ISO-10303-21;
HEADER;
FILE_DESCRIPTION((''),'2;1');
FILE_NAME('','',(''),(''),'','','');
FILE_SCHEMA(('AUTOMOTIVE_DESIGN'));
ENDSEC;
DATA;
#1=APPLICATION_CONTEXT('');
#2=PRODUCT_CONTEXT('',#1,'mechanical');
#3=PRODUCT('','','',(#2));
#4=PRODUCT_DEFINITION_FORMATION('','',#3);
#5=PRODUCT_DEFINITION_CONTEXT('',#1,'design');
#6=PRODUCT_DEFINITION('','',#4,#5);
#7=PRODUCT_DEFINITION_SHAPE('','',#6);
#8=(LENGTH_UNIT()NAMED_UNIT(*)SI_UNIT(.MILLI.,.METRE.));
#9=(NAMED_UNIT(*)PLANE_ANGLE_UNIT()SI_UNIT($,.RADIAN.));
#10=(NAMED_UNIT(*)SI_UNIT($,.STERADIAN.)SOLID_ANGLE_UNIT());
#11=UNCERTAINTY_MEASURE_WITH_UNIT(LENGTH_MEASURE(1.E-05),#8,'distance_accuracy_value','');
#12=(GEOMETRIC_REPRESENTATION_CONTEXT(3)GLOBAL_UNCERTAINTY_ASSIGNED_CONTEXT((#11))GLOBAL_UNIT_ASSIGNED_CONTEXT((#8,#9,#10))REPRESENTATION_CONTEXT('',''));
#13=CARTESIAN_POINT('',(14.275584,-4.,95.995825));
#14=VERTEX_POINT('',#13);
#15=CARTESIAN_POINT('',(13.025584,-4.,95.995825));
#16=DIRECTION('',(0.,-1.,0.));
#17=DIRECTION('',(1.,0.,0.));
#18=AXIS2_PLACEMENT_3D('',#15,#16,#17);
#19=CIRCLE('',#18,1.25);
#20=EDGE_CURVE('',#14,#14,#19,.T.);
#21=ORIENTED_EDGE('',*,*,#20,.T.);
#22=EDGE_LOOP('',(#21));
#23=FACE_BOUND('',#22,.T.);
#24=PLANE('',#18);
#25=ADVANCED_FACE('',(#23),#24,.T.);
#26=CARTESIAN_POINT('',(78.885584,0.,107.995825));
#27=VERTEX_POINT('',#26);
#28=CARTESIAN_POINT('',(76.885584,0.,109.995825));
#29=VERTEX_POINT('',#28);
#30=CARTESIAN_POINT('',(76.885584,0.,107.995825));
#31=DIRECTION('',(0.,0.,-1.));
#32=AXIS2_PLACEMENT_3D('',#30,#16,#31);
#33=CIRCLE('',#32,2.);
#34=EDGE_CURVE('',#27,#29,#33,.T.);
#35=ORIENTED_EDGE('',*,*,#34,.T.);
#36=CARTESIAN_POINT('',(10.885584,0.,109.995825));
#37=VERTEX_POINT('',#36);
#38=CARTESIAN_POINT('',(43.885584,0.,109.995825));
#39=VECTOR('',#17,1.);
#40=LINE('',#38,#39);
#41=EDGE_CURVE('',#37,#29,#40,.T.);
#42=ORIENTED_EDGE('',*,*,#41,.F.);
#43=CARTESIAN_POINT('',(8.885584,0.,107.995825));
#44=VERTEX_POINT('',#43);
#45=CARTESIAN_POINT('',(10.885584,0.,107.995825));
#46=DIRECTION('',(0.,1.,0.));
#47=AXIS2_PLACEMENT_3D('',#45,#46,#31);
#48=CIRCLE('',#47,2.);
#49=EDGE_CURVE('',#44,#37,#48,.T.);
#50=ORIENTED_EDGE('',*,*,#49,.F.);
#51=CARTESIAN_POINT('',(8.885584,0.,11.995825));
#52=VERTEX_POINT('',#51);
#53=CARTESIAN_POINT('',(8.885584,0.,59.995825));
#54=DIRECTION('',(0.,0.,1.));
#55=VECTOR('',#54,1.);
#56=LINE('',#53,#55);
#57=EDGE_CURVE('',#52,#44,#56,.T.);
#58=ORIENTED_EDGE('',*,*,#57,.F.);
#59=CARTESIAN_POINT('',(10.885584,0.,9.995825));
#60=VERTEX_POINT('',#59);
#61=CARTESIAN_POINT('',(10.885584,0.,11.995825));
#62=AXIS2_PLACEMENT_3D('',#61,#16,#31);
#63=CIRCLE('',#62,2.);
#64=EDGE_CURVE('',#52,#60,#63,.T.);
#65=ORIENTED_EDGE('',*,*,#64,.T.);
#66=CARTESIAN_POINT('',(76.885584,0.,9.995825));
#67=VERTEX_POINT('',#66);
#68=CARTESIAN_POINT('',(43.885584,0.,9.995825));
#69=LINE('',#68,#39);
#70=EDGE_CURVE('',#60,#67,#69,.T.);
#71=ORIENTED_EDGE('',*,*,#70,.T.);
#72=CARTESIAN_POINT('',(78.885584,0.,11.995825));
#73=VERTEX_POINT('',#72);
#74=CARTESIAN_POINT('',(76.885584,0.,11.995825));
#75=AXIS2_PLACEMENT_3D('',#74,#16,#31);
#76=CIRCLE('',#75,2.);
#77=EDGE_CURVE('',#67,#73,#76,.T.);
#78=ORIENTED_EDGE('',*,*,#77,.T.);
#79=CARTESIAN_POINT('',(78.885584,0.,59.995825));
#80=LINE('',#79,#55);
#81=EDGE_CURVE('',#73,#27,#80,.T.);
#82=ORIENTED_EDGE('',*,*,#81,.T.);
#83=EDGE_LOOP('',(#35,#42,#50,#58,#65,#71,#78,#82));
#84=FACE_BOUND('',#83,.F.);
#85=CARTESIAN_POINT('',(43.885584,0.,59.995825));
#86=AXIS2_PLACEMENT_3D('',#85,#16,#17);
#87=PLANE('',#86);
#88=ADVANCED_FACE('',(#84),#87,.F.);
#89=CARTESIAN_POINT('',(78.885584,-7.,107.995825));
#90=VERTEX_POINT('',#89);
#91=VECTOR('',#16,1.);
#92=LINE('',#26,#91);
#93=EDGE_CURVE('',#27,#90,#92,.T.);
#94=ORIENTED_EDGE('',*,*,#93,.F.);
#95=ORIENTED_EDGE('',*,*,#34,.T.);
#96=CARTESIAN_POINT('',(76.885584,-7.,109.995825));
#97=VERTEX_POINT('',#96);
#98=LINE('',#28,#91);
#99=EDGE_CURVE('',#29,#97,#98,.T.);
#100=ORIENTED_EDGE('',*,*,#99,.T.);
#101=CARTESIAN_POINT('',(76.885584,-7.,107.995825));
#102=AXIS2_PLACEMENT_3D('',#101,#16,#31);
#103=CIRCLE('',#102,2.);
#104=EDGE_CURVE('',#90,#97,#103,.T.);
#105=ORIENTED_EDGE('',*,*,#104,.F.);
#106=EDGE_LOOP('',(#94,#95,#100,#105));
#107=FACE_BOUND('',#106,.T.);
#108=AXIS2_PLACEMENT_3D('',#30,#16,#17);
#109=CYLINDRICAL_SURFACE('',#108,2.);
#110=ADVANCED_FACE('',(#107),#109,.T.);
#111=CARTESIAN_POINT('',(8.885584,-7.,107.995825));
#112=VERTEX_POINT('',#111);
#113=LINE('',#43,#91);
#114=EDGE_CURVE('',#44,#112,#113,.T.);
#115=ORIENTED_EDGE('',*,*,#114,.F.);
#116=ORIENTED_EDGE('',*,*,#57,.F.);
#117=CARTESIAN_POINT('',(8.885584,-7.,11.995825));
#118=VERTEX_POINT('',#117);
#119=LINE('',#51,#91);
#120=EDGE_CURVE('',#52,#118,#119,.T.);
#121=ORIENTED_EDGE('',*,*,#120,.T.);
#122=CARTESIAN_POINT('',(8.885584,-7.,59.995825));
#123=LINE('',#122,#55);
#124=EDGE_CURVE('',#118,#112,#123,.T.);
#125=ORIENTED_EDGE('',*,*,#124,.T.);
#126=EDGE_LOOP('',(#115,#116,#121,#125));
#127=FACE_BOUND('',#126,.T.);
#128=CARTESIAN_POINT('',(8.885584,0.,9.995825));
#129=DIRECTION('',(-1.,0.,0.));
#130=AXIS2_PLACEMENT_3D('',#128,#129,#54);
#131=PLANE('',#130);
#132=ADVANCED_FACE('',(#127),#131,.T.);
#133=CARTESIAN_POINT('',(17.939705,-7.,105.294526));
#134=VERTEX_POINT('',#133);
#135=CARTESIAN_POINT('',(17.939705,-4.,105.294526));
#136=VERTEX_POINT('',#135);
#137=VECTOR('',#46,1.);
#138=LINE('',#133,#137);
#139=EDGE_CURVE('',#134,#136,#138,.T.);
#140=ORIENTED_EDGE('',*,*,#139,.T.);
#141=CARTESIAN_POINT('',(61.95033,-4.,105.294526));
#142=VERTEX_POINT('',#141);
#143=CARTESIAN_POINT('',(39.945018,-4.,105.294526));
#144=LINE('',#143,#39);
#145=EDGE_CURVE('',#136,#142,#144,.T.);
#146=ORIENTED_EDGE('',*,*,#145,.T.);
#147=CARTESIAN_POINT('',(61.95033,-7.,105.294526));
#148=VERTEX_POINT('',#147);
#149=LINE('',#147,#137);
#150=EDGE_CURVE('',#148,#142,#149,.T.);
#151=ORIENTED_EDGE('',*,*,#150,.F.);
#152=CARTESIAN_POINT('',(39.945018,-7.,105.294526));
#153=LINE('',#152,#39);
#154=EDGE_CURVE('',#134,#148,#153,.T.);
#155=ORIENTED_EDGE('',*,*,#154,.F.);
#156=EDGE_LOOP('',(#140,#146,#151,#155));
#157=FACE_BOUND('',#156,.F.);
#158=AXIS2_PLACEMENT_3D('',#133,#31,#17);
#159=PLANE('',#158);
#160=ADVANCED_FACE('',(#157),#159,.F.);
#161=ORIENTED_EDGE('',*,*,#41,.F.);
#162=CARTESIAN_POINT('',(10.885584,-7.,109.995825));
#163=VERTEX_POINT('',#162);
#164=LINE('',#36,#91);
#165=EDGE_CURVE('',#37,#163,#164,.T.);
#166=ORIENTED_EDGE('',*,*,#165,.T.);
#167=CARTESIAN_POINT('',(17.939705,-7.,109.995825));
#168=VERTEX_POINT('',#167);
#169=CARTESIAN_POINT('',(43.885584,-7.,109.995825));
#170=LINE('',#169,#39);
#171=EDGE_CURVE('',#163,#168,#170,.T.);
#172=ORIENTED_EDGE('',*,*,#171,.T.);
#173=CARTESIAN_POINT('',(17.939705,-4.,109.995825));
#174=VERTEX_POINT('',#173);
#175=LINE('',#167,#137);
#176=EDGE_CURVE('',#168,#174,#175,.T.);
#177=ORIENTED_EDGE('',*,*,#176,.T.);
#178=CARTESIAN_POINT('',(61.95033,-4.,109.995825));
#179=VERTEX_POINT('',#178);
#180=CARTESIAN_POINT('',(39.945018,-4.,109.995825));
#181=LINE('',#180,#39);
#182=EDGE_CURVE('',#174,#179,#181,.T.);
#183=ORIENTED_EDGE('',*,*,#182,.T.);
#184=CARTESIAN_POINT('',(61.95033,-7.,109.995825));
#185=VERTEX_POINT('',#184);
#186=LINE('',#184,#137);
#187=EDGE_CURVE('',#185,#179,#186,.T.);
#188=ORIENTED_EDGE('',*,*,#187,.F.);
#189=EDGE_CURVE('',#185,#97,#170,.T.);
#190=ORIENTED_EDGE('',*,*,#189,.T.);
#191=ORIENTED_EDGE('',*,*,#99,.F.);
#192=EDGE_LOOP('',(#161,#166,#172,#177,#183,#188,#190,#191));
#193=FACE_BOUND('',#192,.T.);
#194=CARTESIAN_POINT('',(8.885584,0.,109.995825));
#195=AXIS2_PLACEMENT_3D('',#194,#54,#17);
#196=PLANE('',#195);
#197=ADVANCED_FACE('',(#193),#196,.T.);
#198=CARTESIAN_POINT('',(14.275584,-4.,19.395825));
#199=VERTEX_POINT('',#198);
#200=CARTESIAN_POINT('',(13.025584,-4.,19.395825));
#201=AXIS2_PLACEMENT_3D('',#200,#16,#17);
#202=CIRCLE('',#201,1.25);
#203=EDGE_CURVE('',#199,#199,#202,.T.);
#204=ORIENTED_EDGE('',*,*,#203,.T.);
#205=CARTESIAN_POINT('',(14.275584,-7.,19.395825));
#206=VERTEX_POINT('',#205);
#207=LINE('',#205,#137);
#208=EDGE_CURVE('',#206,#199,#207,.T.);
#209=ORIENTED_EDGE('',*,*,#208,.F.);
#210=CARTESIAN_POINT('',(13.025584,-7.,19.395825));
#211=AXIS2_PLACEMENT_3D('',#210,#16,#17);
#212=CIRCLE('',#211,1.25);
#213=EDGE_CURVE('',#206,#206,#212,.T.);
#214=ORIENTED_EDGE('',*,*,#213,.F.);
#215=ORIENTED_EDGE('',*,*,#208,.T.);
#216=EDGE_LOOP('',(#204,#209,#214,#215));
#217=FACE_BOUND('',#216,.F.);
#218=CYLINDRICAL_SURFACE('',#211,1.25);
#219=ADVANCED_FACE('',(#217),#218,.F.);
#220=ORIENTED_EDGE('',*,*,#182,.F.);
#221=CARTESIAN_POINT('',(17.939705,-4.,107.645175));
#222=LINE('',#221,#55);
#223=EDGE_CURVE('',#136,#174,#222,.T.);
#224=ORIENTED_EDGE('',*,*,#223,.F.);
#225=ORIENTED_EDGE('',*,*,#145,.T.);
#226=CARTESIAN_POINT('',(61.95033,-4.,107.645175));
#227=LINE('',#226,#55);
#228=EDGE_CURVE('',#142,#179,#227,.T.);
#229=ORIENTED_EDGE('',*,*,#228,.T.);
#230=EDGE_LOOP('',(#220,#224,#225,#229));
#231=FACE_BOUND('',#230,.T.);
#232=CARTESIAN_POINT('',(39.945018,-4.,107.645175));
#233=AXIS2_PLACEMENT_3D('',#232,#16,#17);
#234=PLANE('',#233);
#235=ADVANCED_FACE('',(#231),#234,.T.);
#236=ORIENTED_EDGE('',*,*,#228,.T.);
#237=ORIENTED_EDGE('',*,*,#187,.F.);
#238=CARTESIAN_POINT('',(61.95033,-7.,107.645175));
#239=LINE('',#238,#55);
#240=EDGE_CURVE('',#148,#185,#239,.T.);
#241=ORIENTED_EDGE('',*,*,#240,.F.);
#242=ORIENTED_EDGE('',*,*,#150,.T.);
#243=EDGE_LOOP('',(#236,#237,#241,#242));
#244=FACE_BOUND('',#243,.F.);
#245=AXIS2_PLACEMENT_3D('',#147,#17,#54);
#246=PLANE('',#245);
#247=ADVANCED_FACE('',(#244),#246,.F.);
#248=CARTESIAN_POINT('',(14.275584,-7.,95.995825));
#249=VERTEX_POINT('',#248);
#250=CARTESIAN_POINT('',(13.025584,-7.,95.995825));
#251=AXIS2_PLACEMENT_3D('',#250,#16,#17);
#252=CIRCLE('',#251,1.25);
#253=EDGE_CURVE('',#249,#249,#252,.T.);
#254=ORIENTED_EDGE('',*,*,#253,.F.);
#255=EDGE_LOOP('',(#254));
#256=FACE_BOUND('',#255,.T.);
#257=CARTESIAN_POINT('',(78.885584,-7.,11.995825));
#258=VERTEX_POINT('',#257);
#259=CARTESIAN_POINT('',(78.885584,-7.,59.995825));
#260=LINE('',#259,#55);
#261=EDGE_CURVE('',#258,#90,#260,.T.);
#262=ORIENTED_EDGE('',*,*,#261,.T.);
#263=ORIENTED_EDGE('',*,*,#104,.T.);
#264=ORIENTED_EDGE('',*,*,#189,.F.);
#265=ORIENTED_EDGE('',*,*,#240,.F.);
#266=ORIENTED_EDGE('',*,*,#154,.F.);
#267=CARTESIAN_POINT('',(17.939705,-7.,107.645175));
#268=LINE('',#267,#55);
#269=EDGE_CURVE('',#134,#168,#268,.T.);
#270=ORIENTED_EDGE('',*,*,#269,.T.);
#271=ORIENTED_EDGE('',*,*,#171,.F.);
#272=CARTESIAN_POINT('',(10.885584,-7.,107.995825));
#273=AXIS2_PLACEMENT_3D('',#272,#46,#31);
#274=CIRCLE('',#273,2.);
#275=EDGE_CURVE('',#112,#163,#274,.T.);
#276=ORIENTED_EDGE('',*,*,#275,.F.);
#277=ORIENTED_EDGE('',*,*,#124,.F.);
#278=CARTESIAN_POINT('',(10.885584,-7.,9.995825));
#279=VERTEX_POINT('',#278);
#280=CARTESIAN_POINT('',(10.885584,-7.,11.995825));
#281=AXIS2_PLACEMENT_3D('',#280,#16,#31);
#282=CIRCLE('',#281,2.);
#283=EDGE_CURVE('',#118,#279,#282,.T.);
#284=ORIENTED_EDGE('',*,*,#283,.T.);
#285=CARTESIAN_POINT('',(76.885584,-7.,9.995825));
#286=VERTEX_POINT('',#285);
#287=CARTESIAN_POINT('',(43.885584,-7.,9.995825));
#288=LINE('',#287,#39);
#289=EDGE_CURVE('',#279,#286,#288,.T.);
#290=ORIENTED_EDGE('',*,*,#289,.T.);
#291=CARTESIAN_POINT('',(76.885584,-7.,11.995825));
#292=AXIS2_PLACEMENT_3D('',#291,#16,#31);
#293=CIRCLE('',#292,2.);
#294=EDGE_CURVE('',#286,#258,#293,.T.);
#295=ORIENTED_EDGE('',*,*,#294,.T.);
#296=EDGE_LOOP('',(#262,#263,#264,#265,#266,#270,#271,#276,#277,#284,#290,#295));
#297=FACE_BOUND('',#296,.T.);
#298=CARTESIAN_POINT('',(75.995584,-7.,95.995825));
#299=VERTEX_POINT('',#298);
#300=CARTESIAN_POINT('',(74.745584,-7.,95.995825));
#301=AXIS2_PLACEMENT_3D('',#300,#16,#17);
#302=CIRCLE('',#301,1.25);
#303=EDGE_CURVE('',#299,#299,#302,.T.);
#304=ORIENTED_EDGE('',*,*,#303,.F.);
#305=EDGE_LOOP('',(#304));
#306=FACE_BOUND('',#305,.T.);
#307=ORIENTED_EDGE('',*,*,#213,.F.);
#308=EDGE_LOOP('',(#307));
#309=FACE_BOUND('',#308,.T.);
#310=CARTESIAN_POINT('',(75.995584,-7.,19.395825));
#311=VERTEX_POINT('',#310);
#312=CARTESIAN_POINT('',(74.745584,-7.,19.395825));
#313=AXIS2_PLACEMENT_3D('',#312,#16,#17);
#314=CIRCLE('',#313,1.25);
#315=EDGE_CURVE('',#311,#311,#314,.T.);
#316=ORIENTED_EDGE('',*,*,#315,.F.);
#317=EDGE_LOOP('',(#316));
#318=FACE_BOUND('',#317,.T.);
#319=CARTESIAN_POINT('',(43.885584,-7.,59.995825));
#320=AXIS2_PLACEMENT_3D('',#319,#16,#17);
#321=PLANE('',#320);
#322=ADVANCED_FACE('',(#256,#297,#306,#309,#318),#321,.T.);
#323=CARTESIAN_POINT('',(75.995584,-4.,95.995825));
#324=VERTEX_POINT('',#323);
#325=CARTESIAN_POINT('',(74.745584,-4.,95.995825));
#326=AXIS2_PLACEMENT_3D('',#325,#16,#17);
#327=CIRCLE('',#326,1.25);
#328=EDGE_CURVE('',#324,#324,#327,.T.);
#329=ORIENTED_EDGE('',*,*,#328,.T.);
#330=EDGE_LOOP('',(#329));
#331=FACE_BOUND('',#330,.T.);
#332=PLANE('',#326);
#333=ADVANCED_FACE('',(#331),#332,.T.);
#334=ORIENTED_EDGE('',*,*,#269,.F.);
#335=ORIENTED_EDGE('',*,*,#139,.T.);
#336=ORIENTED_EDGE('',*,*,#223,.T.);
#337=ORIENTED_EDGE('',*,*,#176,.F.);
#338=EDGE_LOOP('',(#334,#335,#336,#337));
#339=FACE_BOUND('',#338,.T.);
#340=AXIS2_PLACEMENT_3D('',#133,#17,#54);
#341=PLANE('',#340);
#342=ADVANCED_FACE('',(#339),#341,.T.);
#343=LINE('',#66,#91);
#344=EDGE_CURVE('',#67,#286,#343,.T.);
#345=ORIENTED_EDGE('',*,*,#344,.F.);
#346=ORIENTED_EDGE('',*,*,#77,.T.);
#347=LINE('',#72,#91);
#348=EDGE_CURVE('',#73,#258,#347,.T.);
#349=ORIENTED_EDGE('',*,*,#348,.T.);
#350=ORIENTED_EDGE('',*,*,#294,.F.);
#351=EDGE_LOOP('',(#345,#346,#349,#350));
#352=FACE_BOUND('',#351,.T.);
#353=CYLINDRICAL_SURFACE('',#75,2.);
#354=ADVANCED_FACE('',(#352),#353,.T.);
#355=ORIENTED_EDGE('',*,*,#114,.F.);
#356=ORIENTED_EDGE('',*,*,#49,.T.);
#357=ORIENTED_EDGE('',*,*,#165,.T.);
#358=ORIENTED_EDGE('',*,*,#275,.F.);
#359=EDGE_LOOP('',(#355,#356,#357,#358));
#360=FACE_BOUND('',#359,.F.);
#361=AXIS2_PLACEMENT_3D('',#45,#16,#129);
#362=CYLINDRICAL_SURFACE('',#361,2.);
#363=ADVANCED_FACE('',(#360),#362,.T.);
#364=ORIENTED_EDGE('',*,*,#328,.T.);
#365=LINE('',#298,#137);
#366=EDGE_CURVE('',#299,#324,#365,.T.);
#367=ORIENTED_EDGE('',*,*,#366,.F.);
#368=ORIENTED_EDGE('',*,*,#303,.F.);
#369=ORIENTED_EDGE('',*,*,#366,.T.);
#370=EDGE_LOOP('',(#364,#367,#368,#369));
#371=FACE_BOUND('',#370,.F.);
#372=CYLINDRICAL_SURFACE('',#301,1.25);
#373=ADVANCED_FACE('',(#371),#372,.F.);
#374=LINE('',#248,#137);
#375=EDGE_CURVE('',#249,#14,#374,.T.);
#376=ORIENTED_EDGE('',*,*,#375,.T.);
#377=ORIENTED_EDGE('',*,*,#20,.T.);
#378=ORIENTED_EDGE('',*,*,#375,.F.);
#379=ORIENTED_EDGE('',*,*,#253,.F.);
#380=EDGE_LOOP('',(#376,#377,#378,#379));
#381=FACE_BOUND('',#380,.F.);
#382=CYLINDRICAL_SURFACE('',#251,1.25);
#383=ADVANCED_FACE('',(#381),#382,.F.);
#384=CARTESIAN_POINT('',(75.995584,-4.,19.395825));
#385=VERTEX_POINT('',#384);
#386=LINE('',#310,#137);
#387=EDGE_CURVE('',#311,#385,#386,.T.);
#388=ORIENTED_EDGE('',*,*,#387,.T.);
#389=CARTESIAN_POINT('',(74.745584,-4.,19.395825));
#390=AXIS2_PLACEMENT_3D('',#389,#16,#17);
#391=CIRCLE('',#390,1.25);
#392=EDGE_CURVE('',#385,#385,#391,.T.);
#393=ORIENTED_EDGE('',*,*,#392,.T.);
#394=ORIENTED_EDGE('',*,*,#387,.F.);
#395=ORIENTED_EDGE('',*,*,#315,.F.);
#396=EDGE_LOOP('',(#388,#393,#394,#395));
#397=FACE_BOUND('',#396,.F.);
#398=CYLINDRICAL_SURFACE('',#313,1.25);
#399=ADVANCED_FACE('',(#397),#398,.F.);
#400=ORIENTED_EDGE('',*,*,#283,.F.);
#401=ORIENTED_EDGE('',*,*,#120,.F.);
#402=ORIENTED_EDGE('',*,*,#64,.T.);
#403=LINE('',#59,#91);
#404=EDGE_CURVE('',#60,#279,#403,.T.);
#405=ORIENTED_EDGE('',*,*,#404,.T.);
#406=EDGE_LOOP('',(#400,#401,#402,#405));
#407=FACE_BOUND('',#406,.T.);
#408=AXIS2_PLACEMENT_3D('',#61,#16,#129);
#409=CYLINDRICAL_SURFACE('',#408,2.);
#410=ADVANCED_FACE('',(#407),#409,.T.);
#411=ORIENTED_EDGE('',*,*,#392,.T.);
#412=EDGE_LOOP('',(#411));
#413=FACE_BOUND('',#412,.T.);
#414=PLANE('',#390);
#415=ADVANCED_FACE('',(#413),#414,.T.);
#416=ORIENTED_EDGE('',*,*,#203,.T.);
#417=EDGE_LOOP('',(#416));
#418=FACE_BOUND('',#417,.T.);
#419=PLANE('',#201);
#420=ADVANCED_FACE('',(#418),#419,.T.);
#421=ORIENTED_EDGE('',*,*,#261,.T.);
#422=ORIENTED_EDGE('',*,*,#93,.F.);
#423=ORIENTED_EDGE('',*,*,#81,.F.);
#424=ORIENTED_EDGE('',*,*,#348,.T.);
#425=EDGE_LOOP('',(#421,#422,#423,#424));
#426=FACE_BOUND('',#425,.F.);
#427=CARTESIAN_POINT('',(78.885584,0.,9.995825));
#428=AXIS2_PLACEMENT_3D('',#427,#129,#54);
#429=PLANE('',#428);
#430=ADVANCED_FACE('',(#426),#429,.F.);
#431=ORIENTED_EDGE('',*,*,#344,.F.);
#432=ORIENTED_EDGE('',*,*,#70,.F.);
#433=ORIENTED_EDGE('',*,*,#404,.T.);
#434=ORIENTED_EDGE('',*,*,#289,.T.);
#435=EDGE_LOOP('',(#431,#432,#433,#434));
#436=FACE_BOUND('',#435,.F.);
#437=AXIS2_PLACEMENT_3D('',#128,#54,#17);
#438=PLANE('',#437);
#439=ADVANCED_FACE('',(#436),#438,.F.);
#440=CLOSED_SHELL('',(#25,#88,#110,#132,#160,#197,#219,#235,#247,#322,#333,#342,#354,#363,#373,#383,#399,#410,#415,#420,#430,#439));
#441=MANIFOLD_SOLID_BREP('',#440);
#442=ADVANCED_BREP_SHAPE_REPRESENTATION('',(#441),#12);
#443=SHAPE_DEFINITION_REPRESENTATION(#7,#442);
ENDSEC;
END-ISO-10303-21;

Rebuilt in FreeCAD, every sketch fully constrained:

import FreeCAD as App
import Part
import Sketcher


def edges_at(feature, points):
    """Names of the edges that pass closest to the given points."""
    edges = feature.Shape.Edges
    near = lambda p: min(range(len(edges)), key=lambda i: edges[i].distToShape(Part.Vertex(*p))[0])
    return sorted({f"Edge{near(p) + 1}" for p in points})

doc = App.newDocument("Part")
body = doc.addObject("PartDesign::Body", "Body")

# Sketch on XZ plane
sketch1 = body.newObject("Sketcher::SketchObject", "Sketch")
sketch1.AttachmentSupport = (doc.getObject("XZ_Plane"), [""])
sketch1.MapMode = "FlatFace"
sketch1.addGeometry([
    Part.LineSegment(App.Vector(8.885584, 109.995825, 0), App.Vector(8.885584, 9.995825, 0)),
    Part.LineSegment(App.Vector(8.885584, 9.995825, 0), App.Vector(78.885584, 9.995825, 0)),
    Part.LineSegment(App.Vector(78.885584, 9.995825, 0), App.Vector(78.885584, 109.995825, 0)),
    Part.LineSegment(App.Vector(78.885584, 109.995825, 0), App.Vector(8.885584, 109.995825, 0)),
], False)
sketch1.addConstraint([
    Sketcher.Constraint("Coincident", 0, 2, 1, 1),
    Sketcher.Constraint("Coincident", 1, 2, 2, 1),
    Sketcher.Constraint("Coincident", 2, 2, 3, 1),
    Sketcher.Constraint("Coincident", 3, 2, 0, 1),
    Sketcher.Constraint("Vertical", 0),
    Sketcher.Constraint("Horizontal", 1),
    Sketcher.Constraint("Vertical", 2),
    Sketcher.Constraint("Horizontal", 3),
    Sketcher.Constraint("DistanceX", 1, 1, 1, 2, 70.0),
    Sketcher.Constraint("DistanceY", 0, 2, 0, 1, 100.0),
    Sketcher.Constraint("DistanceX", -1, 1, 0, 2, 8.885584),
    Sketcher.Constraint("DistanceY", -1, 1, 0, 2, 9.995825),
])
pad1 = body.newObject("PartDesign::Pad", "Pad")
pad1.Profile = sketch1
pad1.Length = 7
doc.recompute()

fillet = body.newObject("PartDesign::Fillet", "Fillet")
fillet.Base = (pad1, edges_at(pad1, [
    (8.886, -3.5, 109.996),
    (8.886, -3.5, 9.996),
    (78.886, -3.5, 9.996),
    (78.886, -3.5, 109.996),
]))
fillet.Radius = 2

# Sketch on XZ plane
sketch2 = body.newObject("Sketcher::SketchObject", "Sketch001")
sketch2.AttachmentSupport = (doc.getObject("XZ_Plane"), [""])
sketch2.MapMode = "FlatFace"
sketch2.AttachmentOffset = App.Placement(App.Vector(0, 0, 7), App.Rotation())
sketch2.addGeometry([
    Part.Circle(App.Vector(13.025584, 95.995825, 0), App.Vector(0, 0, 1), 1.25),  # 0
    Part.Circle(App.Vector(74.745584, 95.995825, 0), App.Vector(0, 0, 1), 1.25),  # 1
    Part.Circle(App.Vector(13.025584, 19.395825, 0), App.Vector(0, 0, 1), 1.25),  # 2
    Part.Circle(App.Vector(74.745584, 19.395825, 0), App.Vector(0, 0, 1), 1.25),  # 3
    Part.LineSegment(App.Vector(17.939705, 109.995825, 0), App.Vector(17.939705, 105.294526, 0)),  # 4
    Part.LineSegment(App.Vector(17.939705, 105.294526, 0), App.Vector(61.95033, 105.294526, 0)),  # 5
    Part.LineSegment(App.Vector(61.95033, 105.294526, 0), App.Vector(61.95033, 109.995825, 0)),  # 6
    Part.LineSegment(App.Vector(61.95033, 109.995825, 0), App.Vector(17.939705, 109.995825, 0)),  # 7
], False)
sketch2.addConstraint([
    Sketcher.Constraint("Coincident", 4, 2, 5, 1),
    Sketcher.Constraint("Coincident", 5, 2, 6, 1),
    Sketcher.Constraint("Coincident", 6, 2, 7, 1),
    Sketcher.Constraint("Coincident", 7, 2, 4, 1),
    Sketcher.Constraint("Vertical", 4),
    Sketcher.Constraint("Horizontal", 5),
    Sketcher.Constraint("Vertical", 6),
    Sketcher.Constraint("Horizontal", 7),
    Sketcher.Constraint("Equal", 0, 1),
    Sketcher.Constraint("Equal", 1, 2),
    Sketcher.Constraint("Equal", 2, 3),
    Sketcher.Constraint("Horizontal", 0, 3, 1, 3),
    Sketcher.Constraint("Horizontal", 2, 3, 3, 3),
    Sketcher.Constraint("Vertical", 0, 3, 2, 3),
    Sketcher.Constraint("Vertical", 1, 3, 3, 3),
    Sketcher.Constraint("Diameter", 0, 2.5),
    Sketcher.Constraint("DistanceY", 1, 3, 6, 2, 14.0),
    Sketcher.Constraint("DistanceY", 2, 3, 0, 3, 76.6),
    Sketcher.Constraint("DistanceX", 0, 3, 1, 3, 61.72),
    Sketcher.Constraint("DistanceY", 4, 2, 4, 1, 4.701299),
    Sketcher.Constraint("DistanceX", 5, 1, 5, 2, 44.010624),
    Sketcher.Constraint("DistanceX", -1, 1, 5, 2, 61.95033),
    Sketcher.Constraint("DistanceX", 0, 3, 4, 2, 4.914121),
    Sketcher.Constraint("DistanceY", -1, 1, 0, 3, 95.995825),
])
pocket1 = body.newObject("PartDesign::Pocket", "Pocket")
pocket1.Profile = sketch2
pocket1.Length = 3

doc.recompute()
